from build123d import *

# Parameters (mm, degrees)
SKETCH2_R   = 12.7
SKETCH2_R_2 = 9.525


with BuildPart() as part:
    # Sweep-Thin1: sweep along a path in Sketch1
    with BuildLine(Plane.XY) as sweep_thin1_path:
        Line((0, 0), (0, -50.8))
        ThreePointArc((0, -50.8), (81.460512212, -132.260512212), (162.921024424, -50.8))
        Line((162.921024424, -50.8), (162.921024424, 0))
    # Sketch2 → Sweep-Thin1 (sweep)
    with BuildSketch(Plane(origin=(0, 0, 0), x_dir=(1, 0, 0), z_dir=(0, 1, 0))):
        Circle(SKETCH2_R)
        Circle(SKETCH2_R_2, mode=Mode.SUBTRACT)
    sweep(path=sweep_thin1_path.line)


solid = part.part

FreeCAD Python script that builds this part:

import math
import FreeCAD as App
import Part
import Sketcher

V = App.Vector
Q = App.Units.Quantity

doc = App.newDocument("Part")
body = doc.addObject("PartDesign::Body", "Body")

# Sketch on XZ plane
sketch1 = body.newObject("Sketcher::SketchObject", "Sketch")
sketch1.AttachmentSupport = (doc.getObject("XZ_Plane"), [""])
sketch1.MapMode = "FlatFace"
sketch1.addGeometry([
    Part.Circle(V(0, 0, 0), V(0, 0, 1), 13),
    Part.Circle(V(0, 0, 0), V(0, 0, 1), 10),
], False)
sketch1.addConstraint([
    Sketcher.Constraint("Coincident", 0, 3, -1, 1),
    Sketcher.Constraint("Coincident", 1, 3, -1, 1),
    Sketcher.Constraint("Diameter", 0, Q("1 in")),
    Sketcher.Constraint("Diameter", 1, Q("0.75 in")),
])

# Sketch on XY plane
sketch2 = body.newObject("Sketcher::SketchObject", "Sketch001")
sketch2.AttachmentSupport = (doc.getObject("XY_Plane"), [""])
sketch2.MapMode = "FlatFace"
sketch2.addGeometry([
    Part.LineSegment(V(0, 0, 0), V(0, -51, 0)),
    Part.ArcOfCircle(Part.Circle(V(81, -51, 0), V(0, 0, 1), 81), math.radians(180), math.radians(360)),
    Part.LineSegment(V(163, -51, 0), V(163, 0, 0)),
], False)
sketch2.addConstraint([
    Sketcher.Constraint("Tangent", 0, 2, 1, 1),
    Sketcher.Constraint("Tangent", 1, 2, 2, 1),
    Sketcher.Constraint("Vertical", 0),
    Sketcher.Constraint("Vertical", 2),
    Sketcher.Constraint("Coincident", 0, 1, -1, 1),
    Sketcher.Constraint("PointOnObject", 2, 2, -1),
    Sketcher.Constraint("DistanceY", 0, 2, 0, 1, Q("2 in")),
    Sketcher.Constraint("Radius", 1, 81.460512),
])
doc.recompute()

additivepipe = body.newObject("PartDesign::AdditivePipe", "AdditivePipe")
additivepipe.Profile = sketch1
additivepipe.Spine = (sketch2, ["Edge1", "Edge2", "Edge3"])

doc.recompute()
